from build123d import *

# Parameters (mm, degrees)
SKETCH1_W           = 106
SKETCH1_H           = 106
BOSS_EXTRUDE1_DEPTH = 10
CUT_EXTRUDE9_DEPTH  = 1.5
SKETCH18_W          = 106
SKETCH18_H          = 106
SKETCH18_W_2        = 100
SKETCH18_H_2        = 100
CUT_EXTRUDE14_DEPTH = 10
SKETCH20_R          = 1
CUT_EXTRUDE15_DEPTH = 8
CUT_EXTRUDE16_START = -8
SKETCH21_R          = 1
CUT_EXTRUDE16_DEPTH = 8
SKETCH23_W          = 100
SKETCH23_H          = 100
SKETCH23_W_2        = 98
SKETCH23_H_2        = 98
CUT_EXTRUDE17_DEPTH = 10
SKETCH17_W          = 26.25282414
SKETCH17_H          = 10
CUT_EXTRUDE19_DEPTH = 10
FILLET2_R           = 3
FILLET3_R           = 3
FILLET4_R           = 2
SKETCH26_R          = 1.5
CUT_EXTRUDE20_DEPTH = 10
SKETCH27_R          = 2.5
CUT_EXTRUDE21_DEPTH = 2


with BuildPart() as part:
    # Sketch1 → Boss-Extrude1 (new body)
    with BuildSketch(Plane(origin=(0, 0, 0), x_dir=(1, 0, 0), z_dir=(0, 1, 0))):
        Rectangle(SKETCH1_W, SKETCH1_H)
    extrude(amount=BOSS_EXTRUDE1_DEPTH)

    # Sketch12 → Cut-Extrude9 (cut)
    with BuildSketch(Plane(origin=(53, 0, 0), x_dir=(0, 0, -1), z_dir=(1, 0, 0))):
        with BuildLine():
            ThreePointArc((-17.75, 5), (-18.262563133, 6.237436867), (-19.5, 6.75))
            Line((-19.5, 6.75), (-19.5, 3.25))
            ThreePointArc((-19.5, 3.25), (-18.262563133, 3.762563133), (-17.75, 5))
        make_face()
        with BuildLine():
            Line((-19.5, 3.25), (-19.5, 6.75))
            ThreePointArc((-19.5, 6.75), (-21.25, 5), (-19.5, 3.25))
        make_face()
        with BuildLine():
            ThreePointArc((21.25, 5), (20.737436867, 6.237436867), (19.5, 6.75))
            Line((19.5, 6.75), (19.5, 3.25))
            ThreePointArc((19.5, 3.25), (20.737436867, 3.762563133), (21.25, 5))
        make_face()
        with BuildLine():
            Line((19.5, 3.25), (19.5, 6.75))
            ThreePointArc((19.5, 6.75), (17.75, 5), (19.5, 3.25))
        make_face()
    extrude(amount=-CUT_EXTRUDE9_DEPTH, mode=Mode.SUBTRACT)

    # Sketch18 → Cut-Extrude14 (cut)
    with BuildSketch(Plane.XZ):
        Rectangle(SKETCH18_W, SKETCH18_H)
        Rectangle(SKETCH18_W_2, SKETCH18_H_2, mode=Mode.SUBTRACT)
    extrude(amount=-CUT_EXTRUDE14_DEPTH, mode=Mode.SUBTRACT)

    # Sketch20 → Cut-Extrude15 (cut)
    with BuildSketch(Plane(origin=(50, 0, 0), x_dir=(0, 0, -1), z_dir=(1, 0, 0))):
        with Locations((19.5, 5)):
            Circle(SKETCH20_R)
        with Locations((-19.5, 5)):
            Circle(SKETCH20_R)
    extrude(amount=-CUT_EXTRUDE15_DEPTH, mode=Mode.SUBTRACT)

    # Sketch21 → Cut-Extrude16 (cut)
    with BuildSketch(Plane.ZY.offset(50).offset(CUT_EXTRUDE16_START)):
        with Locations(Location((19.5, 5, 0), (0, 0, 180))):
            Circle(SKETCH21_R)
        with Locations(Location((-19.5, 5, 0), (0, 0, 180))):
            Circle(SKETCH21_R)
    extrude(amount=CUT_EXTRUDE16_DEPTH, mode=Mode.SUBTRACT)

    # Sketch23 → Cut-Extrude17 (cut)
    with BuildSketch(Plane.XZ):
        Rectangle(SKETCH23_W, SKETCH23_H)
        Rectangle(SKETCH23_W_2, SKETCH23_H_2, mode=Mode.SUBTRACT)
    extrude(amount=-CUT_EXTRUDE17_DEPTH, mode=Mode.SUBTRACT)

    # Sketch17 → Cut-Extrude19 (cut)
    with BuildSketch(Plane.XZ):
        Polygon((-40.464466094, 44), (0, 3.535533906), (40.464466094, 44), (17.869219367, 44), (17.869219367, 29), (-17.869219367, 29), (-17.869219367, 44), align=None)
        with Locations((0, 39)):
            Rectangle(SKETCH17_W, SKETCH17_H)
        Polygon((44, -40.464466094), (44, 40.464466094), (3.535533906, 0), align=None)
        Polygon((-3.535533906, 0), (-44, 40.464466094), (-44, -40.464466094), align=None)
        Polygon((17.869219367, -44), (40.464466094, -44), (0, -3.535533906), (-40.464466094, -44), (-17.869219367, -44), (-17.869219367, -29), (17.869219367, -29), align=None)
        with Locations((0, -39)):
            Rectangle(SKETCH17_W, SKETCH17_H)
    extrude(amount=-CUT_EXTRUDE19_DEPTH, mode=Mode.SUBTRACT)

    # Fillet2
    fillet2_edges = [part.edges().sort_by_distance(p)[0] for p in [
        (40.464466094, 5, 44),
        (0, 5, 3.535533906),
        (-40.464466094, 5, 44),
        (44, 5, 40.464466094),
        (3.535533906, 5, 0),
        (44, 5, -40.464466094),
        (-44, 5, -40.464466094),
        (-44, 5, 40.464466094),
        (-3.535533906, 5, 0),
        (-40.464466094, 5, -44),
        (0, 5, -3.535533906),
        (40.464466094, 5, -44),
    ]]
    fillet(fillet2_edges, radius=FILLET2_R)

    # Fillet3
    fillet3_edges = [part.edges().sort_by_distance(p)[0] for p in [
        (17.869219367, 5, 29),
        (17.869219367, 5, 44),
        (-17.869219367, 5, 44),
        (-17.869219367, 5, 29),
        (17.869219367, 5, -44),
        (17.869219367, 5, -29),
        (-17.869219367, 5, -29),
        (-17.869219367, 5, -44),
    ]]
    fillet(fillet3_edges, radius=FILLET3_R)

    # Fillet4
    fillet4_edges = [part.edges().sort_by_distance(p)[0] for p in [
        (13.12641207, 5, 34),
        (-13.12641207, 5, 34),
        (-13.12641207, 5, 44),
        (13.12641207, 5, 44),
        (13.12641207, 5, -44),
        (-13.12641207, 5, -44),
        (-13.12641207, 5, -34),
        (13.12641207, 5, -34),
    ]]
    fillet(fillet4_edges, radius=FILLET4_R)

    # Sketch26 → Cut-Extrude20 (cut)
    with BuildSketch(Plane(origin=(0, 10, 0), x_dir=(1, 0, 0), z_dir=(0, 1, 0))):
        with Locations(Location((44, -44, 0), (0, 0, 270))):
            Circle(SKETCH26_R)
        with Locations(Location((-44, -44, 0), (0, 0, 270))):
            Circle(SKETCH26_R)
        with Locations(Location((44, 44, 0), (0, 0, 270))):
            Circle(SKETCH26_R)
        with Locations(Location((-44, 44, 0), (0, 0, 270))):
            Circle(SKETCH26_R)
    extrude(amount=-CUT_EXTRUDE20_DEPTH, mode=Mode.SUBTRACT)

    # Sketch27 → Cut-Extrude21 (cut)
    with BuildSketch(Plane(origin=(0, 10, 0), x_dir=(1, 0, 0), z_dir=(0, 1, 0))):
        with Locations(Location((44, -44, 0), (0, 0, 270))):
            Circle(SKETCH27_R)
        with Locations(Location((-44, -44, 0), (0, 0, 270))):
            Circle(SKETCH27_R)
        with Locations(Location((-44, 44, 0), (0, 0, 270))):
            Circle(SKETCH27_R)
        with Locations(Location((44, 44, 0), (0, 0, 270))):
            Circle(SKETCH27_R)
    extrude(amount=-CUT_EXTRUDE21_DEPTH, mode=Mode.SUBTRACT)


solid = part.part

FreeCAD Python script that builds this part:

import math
import FreeCAD as App
import Part
import Sketcher
from FreeCAD import Vector
Q = App.Units.Quantity


def edges_at(feature, points):
    """Names of the edges that pass closest to the given points."""
    edges = feature.Shape.Edges
    near = lambda p: min(range(len(edges)), key=lambda i: edges[i].distToShape(Part.Vertex(*p))[0])
    return sorted({f"Edge{near(p) + 1}" for p in points})

doc = App.newDocument("Part")
body = doc.addObject("PartDesign::Body", "Body")

# Sketch on XZ plane
sketch1 = body.newObject("Sketcher::SketchObject", "Sketch")
sketch1.AttachmentSupport = (doc.getObject("XZ_Plane"), [""])
sketch1.MapMode = "FlatFace"
sketch1.addGeometry([
    Part.LineSegment(Vector(-53, -53, 0), Vector(-53, 53, 0)),
    Part.LineSegment(Vector(-53, 53, 0), Vector(53, 53, 0)),
    Part.LineSegment(Vector(53, 53, 0), Vector(53, -53, 0)),
    Part.LineSegment(Vector(53, -53, 0), Vector(-53, -53, 0)),
], False)
sketch1.addConstraint([
    Sketcher.Constraint("Coincident", 0, 2, 1, 1),
    Sketcher.Constraint("Coincident", 1, 2, 2, 1),
    Sketcher.Constraint("Coincident", 2, 2, 3, 1),
    Sketcher.Constraint("Coincident", 3, 2, 0, 1),
    Sketcher.Constraint("Vertical", 0),
    Sketcher.Constraint("Horizontal", 1),
    Sketcher.Constraint("Vertical", 2),
    Sketcher.Constraint("Horizontal", 3),
    Sketcher.Constraint("Symmetric", 0, 2, 2, 2, -1, 1),
    Sketcher.Constraint("Equal", 3, 0),
    Sketcher.Constraint("DistanceX", 1, 1, 1, 2, Q("106 mm")),
])
pad1 = body.newObject("PartDesign::Pad", "Pad")
pad1.Profile = sketch1
pad1.Length = 10
pad1.Reversed = True

# Sketch on YZ plane
sketch2 = body.newObject("Sketcher::SketchObject", "Sketch001")
sketch2.AttachmentSupport = (doc.getObject("YZ_Plane"), [""])
sketch2.MapMode = "FlatFace"
sketch2.AttachmentOffset = App.Placement(Vector(0, 0, 53), App.Rotation())
sketch2.addGeometry([
    Part.ArcOfCircle(Part.Circle(Vector(5, 19.5, 0), Vector(0, 0, 1), 1.75), math.radians(-90), math.radians(0)),  # 0
    Part.ArcOfCircle(Part.Circle(Vector(5, 19.5, 0), Vector(0, 0, 1), 1.75), math.radians(0), math.radians(180)),  # 1
    Part.ArcOfCircle(Part.Circle(Vector(5, 19.5, 0), Vector(0, 0, 1), 1.75), math.radians(180), math.radians(270)),  # 2
    Part.ArcOfCircle(Part.Circle(Vector(5, -19.5, 0), Vector(0, 0, 1), 1.75), math.radians(-90), math.radians(0)),  # 3
    Part.ArcOfCircle(Part.Circle(Vector(5, -19.5, 0), Vector(0, 0, 1), 1.75), math.radians(0), math.radians(180)),  # 4
    Part.ArcOfCircle(Part.Circle(Vector(5, -19.5, 0), Vector(0, 0, 1), 1.75), math.radians(180), math.radians(270)),  # 5
], False)
sketch2.addConstraint([
    Sketcher.Constraint("Tangent", 0, 2, 1, 1),
    Sketcher.Constraint("Tangent", 1, 2, 2, 1),
    Sketcher.Constraint("Tangent", 2, 2, 0, 1),
    Sketcher.Constraint("Tangent", 3, 2, 4, 1),
    Sketcher.Constraint("Tangent", 4, 2, 5, 1),
    Sketcher.Constraint("Tangent", 5, 2, 3, 1),
    Sketcher.Constraint("Equal", 2, 3),
    Sketcher.Constraint("Symmetric", 0, 3, 3, 3, -1),
    Sketcher.Constraint("Horizontal", 2, 3, 0, 2),
    Sketcher.Constraint("Horizontal", 0, 2, 1, 2),
    Sketcher.Constraint("Horizontal", 5, 3, 3, 2),
    Sketcher.Constraint("Horizontal", 3, 2, 4, 2),
    Sketcher.Constraint("Vertical", 5, 3, 2, 2),
    Sketcher.Constraint("Vertical", 2, 2, 5, 2),
    Sketcher.Constraint("Radius", 0, Q("1.75 mm")),
    Sketcher.Constraint("DistanceX", -1, 1, 0, 3, Q("5 mm")),
    Sketcher.Constraint("DistanceY", 3, 3, 0, 3, Q("39 mm")),
])
pocket1 = body.newObject("PartDesign::Pocket", "Pocket")
pocket1.Profile = sketch2
pocket1.Length = 1.5

# Sketch on XZ plane
sketch3 = body.newObject("Sketcher::SketchObject", "Sketch002")
sketch3.AttachmentSupport = (doc.getObject("XZ_Plane"), [""])
sketch3.MapMode = "FlatFace"
sketch3.addGeometry([
    Part.LineSegment(Vector(-53, 53, 0), Vector(-53, -53, 0)),  # 0
    Part.LineSegment(Vector(-53, -53, 0), Vector(53, -53, 0)),  # 1
    Part.LineSegment(Vector(53, -53, 0), Vector(53, 53, 0)),  # 2
    Part.LineSegment(Vector(53, 53, 0), Vector(-53, 53, 0)),  # 3
    Part.LineSegment(Vector(50, -50, 0), Vector(-50, -50, 0)),  # 4
    Part.LineSegment(Vector(-50, -50, 0), Vector(-50, 50, 0)),  # 5
    Part.LineSegment(Vector(-50, 50, 0), Vector(50, 50, 0)),  # 6
    Part.LineSegment(Vector(50, 50, 0), Vector(50, -50, 0)),  # 7
], False)
sketch3.addConstraint([
    Sketcher.Constraint("Coincident", 0, 2, 1, 1),
    Sketcher.Constraint("Coincident", 1, 2, 2, 1),
    Sketcher.Constraint("Coincident", 2, 2, 3, 1),
    Sketcher.Constraint("Coincident", 3, 2, 0, 1),
    Sketcher.Constraint("Coincident", 4, 2, 5, 1),
    Sketcher.Constraint("Coincident", 5, 2, 6, 1),
    Sketcher.Constraint("Coincident", 6, 2, 7, 1),
    Sketcher.Constraint("Coincident", 7, 2, 4, 1),
    Sketcher.Constraint("Vertical", 0),
    Sketcher.Constraint("Horizontal", 1),
    Sketcher.Constraint("Vertical", 2),
    Sketcher.Constraint("Horizontal", 3),
    Sketcher.Constraint("Horizontal", 4),
    Sketcher.Constraint("Vertical", 5),
    Sketcher.Constraint("Horizontal", 6),
    Sketcher.Constraint("Vertical", 7),
    Sketcher.Constraint("Symmetric", 0, 2, 2, 2, -1, 1),
    Sketcher.Constraint("Symmetric", 4, 2, 6, 2, -1, 1),
    Sketcher.Constraint("Equal", 3, 0),
    Sketcher.Constraint("Equal", 6, 5),
    Sketcher.Constraint("DistanceX", 1, 1, 1, 2, Q("106 mm")),
    Sketcher.Constraint("DistanceX", 4, 2, 4, 1, Q("100 mm")),
])
pocket2 = body.newObject("PartDesign::Pocket", "Pocket001")
pocket2.Profile = sketch3
pocket2.Length = 10

# Sketch on YZ plane
sketch4 = body.newObject("Sketcher::SketchObject", "Sketch003")
sketch4.AttachmentSupport = (doc.getObject("YZ_Plane"), [""])
sketch4.MapMode = "FlatFace"
sketch4.AttachmentOffset = App.Placement(Vector(0, 0, 50), App.Rotation())
sketch4.addGeometry([
    Part.Circle(Vector(5, -19.5, 0), Vector(0, 0, 1), 1),
    Part.Circle(Vector(5, 19.5, 0), Vector(0, 0, 1), 1),
], False)
sketch4.addConstraint([
    Sketcher.Constraint("Equal", 0, 1),
    Sketcher.Constraint("Symmetric", 0, 3, 1, 3, -1),
    Sketcher.Constraint("Diameter", 0, Q("2 mm")),
    Sketcher.Constraint("DistanceX", -1, 1, 0, 3, Q("5 mm")),
    Sketcher.Constraint("DistanceY", 0, 3, 1, 3, Q("39 mm")),
])
pocket3 = body.newObject("PartDesign::Pocket", "Pocket002")
pocket3.Profile = sketch4
pocket3.Length = 8

# Sketch on YZ plane
sketch5 = body.newObject("Sketcher::SketchObject", "Sketch004")
sketch5.AttachmentSupport = (doc.getObject("YZ_Plane"), [""])
sketch5.MapMode = "FlatFace"
sketch5.AttachmentOffset = App.Placement(Vector(0, 0, -42), App.Rotation())
sketch5.addGeometry([
    Part.Circle(Vector(5, 19.5, 0), Vector(0, 0, 1), 1),
    Part.Circle(Vector(5, -19.5, 0), Vector(0, 0, 1), 1),
], False)
sketch5.addConstraint([
    Sketcher.Constraint("Equal", 0, 1),
    Sketcher.Constraint("Symmetric", 0, 3, 1, 3, -1),
    Sketcher.Constraint("Diameter", 0, Q("2 mm")),
    Sketcher.Constraint("DistanceX", -1, 1, 0, 3, Q("5 mm")),
    Sketcher.Constraint("DistanceY", 1, 3, 0, 3, Q("39 mm")),
])
pocket4 = body.newObject("PartDesign::Pocket", "Pocket003")
pocket4.Profile = sketch5
pocket4.Length = 8

# Sketch on XZ plane
sketch6 = body.newObject("Sketcher::SketchObject", "Sketch005")
sketch6.AttachmentSupport = (doc.getObject("XZ_Plane"), [""])
sketch6.MapMode = "FlatFace"
sketch6.addGeometry([
    Part.LineSegment(Vector(-50, 50, 0), Vector(-50, -50, 0)),  # 0
    Part.LineSegment(Vector(-50, -50, 0), Vector(50, -50, 0)),  # 1
    Part.LineSegment(Vector(50, -50, 0), Vector(50, 50, 0)),  # 2
    Part.LineSegment(Vector(50, 50, 0), Vector(-50, 50, 0)),  # 3
    Part.LineSegment(Vector(49, -49, 0), Vector(-49, -49, 0)),  # 4
    Part.LineSegment(Vector(-49, -49, 0), Vector(-49, 49, 0)),  # 5
    Part.LineSegment(Vector(-49, 49, 0), Vector(49, 49, 0)),  # 6
    Part.LineSegment(Vector(49, 49, 0), Vector(49, -49, 0)),  # 7
], False)
sketch6.addConstraint([
    Sketcher.Constraint("Coincident", 0, 2, 1, 1),
    Sketcher.Constraint("Coincident", 1, 2, 2, 1),
    Sketcher.Constraint("Coincident", 2, 2, 3, 1),
    Sketcher.Constraint("Coincident", 3, 2, 0, 1),
    Sketcher.Constraint("Coincident", 4, 2, 5, 1),
    Sketcher.Constraint("Coincident", 5, 2, 6, 1),
    Sketcher.Constraint("Coincident", 6, 2, 7, 1),
    Sketcher.Constraint("Coincident", 7, 2, 4, 1),
    Sketcher.Constraint("Vertical", 0),
    Sketcher.Constraint("Horizontal", 1),
    Sketcher.Constraint("Vertical", 2),
    Sketcher.Constraint("Horizontal", 3),
    Sketcher.Constraint("Horizontal", 4),
    Sketcher.Constraint("Vertical", 5),
    Sketcher.Constraint("Horizontal", 6),
    Sketcher.Constraint("Vertical", 7),
    Sketcher.Constraint("Symmetric", 0, 2, 2, 2, -1, 1),
    Sketcher.Constraint("Symmetric", 4, 2, 6, 2, -1, 1),
    Sketcher.Constraint("Equal", 3, 0),
    Sketcher.Constraint("Equal", 6, 5),
    Sketcher.Constraint("DistanceX", 1, 1, 1, 2, Q("100 mm")),
    Sketcher.Constraint("DistanceX", 4, 2, 4, 1, Q("98 mm")),
])
pocket5 = body.newObject("PartDesign::Pocket", "Pocket004")
pocket5.Profile = sketch6
pocket5.Length = 10

# Sketch on XZ plane
sketch7 = body.newObject("Sketcher::SketchObject", "Sketch006")
sketch7.AttachmentSupport = (doc.getObject("XZ_Plane"), [""])
sketch7.MapMode = "FlatFace"
sketch7.addGeometry([
    Part.LineSegment(Vector(-40.464466, 44, 0), Vector(0, 3.535534, 0)),  # 0
    Part.LineSegment(Vector(0, 3.535534, 0), Vector(40.464466, 44, 0)),  # 1
    Part.LineSegment(Vector(40.464466, 44, 0), Vector(17.869219, 44, 0)),  # 2
    Part.LineSegment(Vector(17.869219, 44, 0), Vector(17.869219, 29, 0)),  # 3
    Part.LineSegment(Vector(17.869219, 29, 0), Vector(-17.869219, 29, 0)),  # 4
    Part.LineSegment(Vector(-17.869219, 29, 0), Vector(-17.869219, 44, 0)),  # 5
    Part.LineSegment(Vector(-17.869219, 44, 0), Vector(-40.464466, 44, 0)),  # 6
    Part.LineSegment(Vector(-13.126412, 44, 0), Vector(-13.126412, 34, 0)),  # 7
    Part.LineSegment(Vector(-13.126412, 34, 0), Vector(13.126412, 34, 0)),  # 8
    Part.LineSegment(Vector(13.126412, 34, 0), Vector(13.126412, 44, 0)),  # 9
    Part.LineSegment(Vector(13.126412, 44, 0), Vector(-13.126412, 44, 0)),  # 10
    Part.LineSegment(Vector(44, -40.464466, 0), Vector(44, 40.464466, 0)),  # 11
    Part.LineSegment(Vector(44, 40.464466, 0), Vector(3.535534, 0, 0)),  # 12
    Part.LineSegment(Vector(3.535534, 0, 0), Vector(44, -40.464466, 0)),  # 13
    Part.LineSegment(Vector(-3.535534, 0, 0), Vector(-44, 40.464466, 0)),  # 14
    Part.LineSegment(Vector(-44, 40.464466, 0), Vector(-44, -40.464466, 0)),  # 15
    Part.LineSegment(Vector(-44, -40.464466, 0), Vector(-3.535534, 0, 0)),  # 16
    Part.LineSegment(Vector(17.869219, -44, 0), Vector(40.464466, -44, 0)),  # 17
    Part.LineSegment(Vector(40.464466, -44, 0), Vector(0, -3.535534, 0)),  # 18
    Part.LineSegment(Vector(0, -3.535534, 0), Vector(-40.464466, -44, 0)),  # 19
    Part.LineSegment(Vector(-40.464466, -44, 0), Vector(-17.869219, -44, 0)),  # 20
    Part.LineSegment(Vector(-17.869219, -44, 0), Vector(-17.869219, -29, 0)),  # 21
    Part.LineSegment(Vector(-17.869219, -29, 0), Vector(17.869219, -29, 0)),  # 22
    Part.LineSegment(Vector(17.869219, -29, 0), Vector(17.869219, -44, 0)),  # 23
    Part.LineSegment(Vector(-13.126412, -34, 0), Vector(-13.126412, -44, 0)),  # 24
    Part.LineSegment(Vector(-13.126412, -44, 0), Vector(13.126412, -44, 0)),  # 25
    Part.LineSegment(Vector(13.126412, -44, 0), Vector(13.126412, -34, 0)),  # 26
    Part.LineSegment(Vector(13.126412, -34, 0), Vector(-13.126412, -34, 0)),  # 27
], False)
sketch7.addConstraint([
    Sketcher.Constraint("Coincident", 0, 2, 1, 1),
    Sketcher.Constraint("Coincident", 1, 2, 2, 1),
    Sketcher.Constraint("Coincident", 2, 2, 3, 1),
    Sketcher.Constraint("Coincident", 3, 2, 4, 1),
    Sketcher.Constraint("Coincident", 4, 2, 5, 1),
    Sketcher.Constraint("Coincident", 5, 2, 6, 1),
    Sketcher.Constraint("Coincident", 6, 2, 0, 1),
    Sketcher.Constraint("Coincident", 7, 2, 8, 1),
    Sketcher.Constraint("Coincident", 8, 2, 9, 1),
    Sketcher.Constraint("Coincident", 9, 2, 10, 1),
    Sketcher.Constraint("Coincident", 10, 2, 7, 1),
    Sketcher.Constraint("Coincident", 11, 2, 12, 1),
    Sketcher.Constraint("Coincident", 12, 2, 13, 1),
    Sketcher.Constraint("Coincident", 13, 2, 11, 1),
    Sketcher.Constraint("Coincident", 14, 2, 15, 1),
    Sketcher.Constraint("Coincident", 15, 2, 16, 1),
    Sketcher.Constraint("Coincident", 16, 2, 14, 1),
    Sketcher.Constraint("Coincident", 17, 2, 18, 1),
    Sketcher.Constraint("Coincident", 18, 2, 19, 1),
    Sketcher.Constraint("Coincident", 19, 2, 20, 1),
    Sketcher.Constraint("Coincident", 20, 2, 21, 1),
    Sketcher.Constraint("Coincident", 21, 2, 22, 1),
    Sketcher.Constraint("Coincident", 22, 2, 23, 1),
    Sketcher.Constraint("Coincident", 23, 2, 17, 1),
    Sketcher.Constraint("Coincident", 24, 2, 25, 1),
    Sketcher.Constraint("Coincident", 25, 2, 26, 1),
    Sketcher.Constraint("Coincident", 26, 2, 27, 1),
    Sketcher.Constraint("Coincident", 27, 2, 24, 1),
    Sketcher.Constraint("Horizontal", 2),
    Sketcher.Constraint("Vertical", 3),
    Sketcher.Constraint("Horizontal", 4),
    Sketcher.Constraint("Vertical", 5),
    Sketcher.Constraint("Horizontal", 6),
    Sketcher.Constraint("Vertical", 7),
    Sketcher.Constraint("Horizontal", 8),
    Sketcher.Constraint("Vertical", 9),
    Sketcher.Constraint("Horizontal", 10),
    Sketcher.Constraint("Vertical", 11),
    Sketcher.Constraint("Vertical", 15),
    Sketcher.Constraint("Horizontal", 17),
    Sketcher.Constraint("Horizontal", 20),
    Sketcher.Constraint("Vertical", 21),
    Sketcher.Constraint("Horizontal", 22),
    Sketcher.Constraint("Vertical", 23),
    Sketcher.Constraint("Vertical", 24),
    Sketcher.Constraint("Horizontal", 25),
    Sketcher.Constraint("Vertical", 26),
    Sketcher.Constraint("Horizontal", 27),
    Sketcher.Constraint("Symmetric", 13, 2, 14, 2, -1, 1),
    Sketcher.Constraint("Symmetric", 12, 2, 16, 2, -1, 1),
    Sketcher.Constraint("Symmetric", 6, 2, 17, 2, -1, 1),
    Sketcher.Constraint("Symmetric", 0, 2, 18, 2, -1, 1),
    Sketcher.Constraint("Symmetric", 1, 2, 19, 2, -1, 1),
    Sketcher.Constraint("Symmetric", 3, 2, 21, 2, -1, 1),
    Sketcher.Constraint("Symmetric", 9, 2, 24, 2, -1, 1),
    Sketcher.Constraint("Symmetric", 7, 2, 26, 2, -1, 1),
    Sketcher.Constraint("Symmetric", 2, 2, 5, 2, -2),
    Sketcher.Constraint("PointOnObject", 0, 2, -2),
    Sketcher.Constraint("PointOnObject", 12, 2, -1),
    Sketcher.Constraint("Perpendicular", 0, 1),
    Sketcher.Constraint("Parallel", 1, 12),
    Sketcher.Constraint("Perpendicular", 12, 13),
    Sketcher.Constraint("Perpendicular", 14, 16),
    Sketcher.Constraint("Horizontal", 6, 2, 9, 2),
    Sketcher.Constraint("Horizontal", 11, 2, 14, 2),
    Sketcher.Constraint("Vertical", 3, 2, 22, 2),
    Sketcher.Constraint("Vertical", 10, 2, 24, 2),
    Sketcher.Constraint("Equal", 1, 12),
    Sketcher.Constraint("DistanceY", 3, 2, 3, 1, Q("15 mm")),
    Sketcher.Constraint("DistanceY", 7, 2, 7, 1, Q("10 mm")),
    Sketcher.Constraint("DistanceY", -1, 1, 1, 2, Q("44 mm")),
    Sketcher.Constraint("DistanceX", -1, 1, 11, 2, Q("44 mm")),
    Sketcher.Constraint("DistanceX", 4, 2, 4, 1, Q("35.738439 mm")),
    Sketcher.Constraint("DistanceX", 2, 2, 2, 1, Q("22.595247 mm")),
    Sketcher.Constraint("DistanceX", 8, 1, 8, 2, Q("26.252824 mm")),
])
pocket6 = body.newObject("PartDesign::Pocket", "Pocket005")
pocket6.Profile = sketch7
pocket6.Length = 10
doc.recompute()

fillet = body.newObject("PartDesign::Fillet", "Fillet")
fillet.Base = (pocket6, edges_at(pocket6, [
    (40.464, 5, 44),
    (0, 5, 3.536),
    (-40.464, 5, 44),
    (44, 5, 40.464),
    (3.536, 5, 0),
    (44, 5, -40.464),
    (-44, 5, -40.464),
    (-44, 5, 40.464),
    (-3.536, 5, 0),
    (-40.464, 5, -44),
    (0, 5, -3.536),
    (40.464, 5, -44),
]))
fillet.Radius = 3
doc.recompute()

fillet2 = body.newObject("PartDesign::Fillet", "Fillet001")
fillet2.Base = (fillet, edges_at(fillet, [
    (17.869, 5, 29),
    (17.869, 5, 44),
    (-17.869, 5, 44),
    (-17.869, 5, 29),
    (17.869, 5, -44),
    (17.869, 5, -29),
    (-17.869, 5, -29),
    (-17.869, 5, -44),
]))
fillet2.Radius = 3
doc.recompute()

fillet3 = body.newObject("PartDesign::Fillet", "Fillet002")
fillet3.Base = (fillet2, edges_at(fillet2, [
    (13.126, 5, 34),
    (-13.126, 5, 34),
    (-13.126, 5, 44),
    (13.126, 5, 44),
    (13.126, 5, -44),
    (-13.126, 5, -44),
    (-13.126, 5, -34),
    (13.126, 5, -34),
]))
fillet3.Radius = 2

# Sketch on XZ plane
sketch8 = body.newObject("Sketcher::SketchObject", "Sketch007")
sketch8.AttachmentSupport = (doc.getObject("XZ_Plane"), [""])
sketch8.MapMode = "FlatFace"
sketch8.AttachmentOffset = App.Placement(Vector(0, 0, -10), App.Rotation())
sketch8.addGeometry([
    Part.Circle(Vector(44, 44, 0), Vector(0, 0, 1), 1.5),
    Part.Circle(Vector(-44, 44, 0), Vector(0, 0, 1), 1.5),
    Part.Circle(Vector(44, -44, 0), Vector(0, 0, 1), 1.5),
    Part.Circle(Vector(-44, -44, 0), Vector(0, 0, 1), 1.5),
], False)
sketch8.addConstraint([
    Sketcher.Constraint("Equal", 0, 1),
    Sketcher.Constraint("Equal", 1, 2),
    Sketcher.Constraint("Equal", 2, 3),
    Sketcher.Constraint("Symmetric", 1, 3, 2, 3, -1, 1),
    Sketcher.Constraint("Symmetric", 0, 3, 3, 3, -1, 1),
    Sketcher.Constraint("Symmetric", 0, 3, 1, 3, -2),
    Sketcher.Constraint("Diameter", 0, Q("3 mm")),
    Sketcher.Constraint("DistanceX", -1, 1, 0, 3, Q("44 mm")),
    Sketcher.Constraint("DistanceY", -1, 1, 0, 3, Q("44 mm")),
])
pocket7 = body.newObject("PartDesign::Pocket", "Pocket006")
pocket7.Profile = sketch8
pocket7.Length = 10
pocket7.Reversed = True

# Sketch on XZ plane
sketch9 = body.newObject("Sketcher::SketchObject", "Sketch008")
sketch9.AttachmentSupport = (doc.getObject("XZ_Plane"), [""])
sketch9.MapMode = "FlatFace"
sketch9.AttachmentOffset = App.Placement(Vector(0, 0, -10), App.Rotation())
sketch9.addGeometry([
    Part.Circle(Vector(44, 44, 0), Vector(0, 0, 1), 2.5),
    Part.Circle(Vector(-44, 44, 0), Vector(0, 0, 1), 2.5),
    Part.Circle(Vector(-44, -44, 0), Vector(0, 0, 1), 2.5),
    Part.Circle(Vector(44, -44, 0), Vector(0, 0, 1), 2.5),
], False)
sketch9.addConstraint([
    Sketcher.Constraint("Equal", 0, 1),
    Sketcher.Constraint("Equal", 1, 2),
    Sketcher.Constraint("Equal", 2, 3),
    Sketcher.Constraint("Symmetric", 0, 3, 2, 3, -1, 1),
    Sketcher.Constraint("Symmetric", 1, 3, 3, 3, -1, 1),
    Sketcher.Constraint("Symmetric", 0, 3, 1, 3, -2),
    Sketcher.Constraint("Diameter", 0, Q("5 mm")),
    Sketcher.Constraint("DistanceX", -1, 1, 0, 3, Q("44 mm")),
    Sketcher.Constraint("DistanceY", -1, 1, 0, 3, Q("44 mm")),
])
pocket8 = body.newObject("PartDesign::Pocket", "Pocket007")
pocket8.Profile = sketch9
pocket8.Length = 2
pocket8.Reversed = True

doc.recompute()
